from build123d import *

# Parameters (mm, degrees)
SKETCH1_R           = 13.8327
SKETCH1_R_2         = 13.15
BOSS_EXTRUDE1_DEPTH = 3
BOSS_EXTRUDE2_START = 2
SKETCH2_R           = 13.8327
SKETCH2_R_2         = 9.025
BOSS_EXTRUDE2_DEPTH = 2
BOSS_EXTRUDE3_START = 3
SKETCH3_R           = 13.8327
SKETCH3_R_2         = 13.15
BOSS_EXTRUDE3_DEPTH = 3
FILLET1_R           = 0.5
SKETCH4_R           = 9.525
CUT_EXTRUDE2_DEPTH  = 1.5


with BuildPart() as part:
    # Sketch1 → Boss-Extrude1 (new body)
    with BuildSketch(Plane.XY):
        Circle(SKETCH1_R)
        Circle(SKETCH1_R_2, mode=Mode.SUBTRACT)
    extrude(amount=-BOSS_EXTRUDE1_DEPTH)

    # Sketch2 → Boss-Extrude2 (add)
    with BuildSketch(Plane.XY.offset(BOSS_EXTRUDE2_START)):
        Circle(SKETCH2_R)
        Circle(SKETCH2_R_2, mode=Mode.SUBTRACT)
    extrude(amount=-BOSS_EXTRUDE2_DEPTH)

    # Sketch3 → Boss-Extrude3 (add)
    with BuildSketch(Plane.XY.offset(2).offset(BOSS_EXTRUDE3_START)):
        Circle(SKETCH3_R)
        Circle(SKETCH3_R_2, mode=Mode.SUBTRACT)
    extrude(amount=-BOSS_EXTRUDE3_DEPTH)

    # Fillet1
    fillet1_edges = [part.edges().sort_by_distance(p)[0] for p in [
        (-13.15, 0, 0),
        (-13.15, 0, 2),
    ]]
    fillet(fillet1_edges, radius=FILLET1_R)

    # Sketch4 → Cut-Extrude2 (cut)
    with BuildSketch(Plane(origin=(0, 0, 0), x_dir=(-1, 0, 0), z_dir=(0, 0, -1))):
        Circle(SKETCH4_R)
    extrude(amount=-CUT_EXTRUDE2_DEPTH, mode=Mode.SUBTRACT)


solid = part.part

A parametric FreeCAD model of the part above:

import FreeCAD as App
import Part
import Sketcher
from FreeCAD import Vector
Q = App.Units.Quantity


def edges_at(feature, points):
    """Names of the edges that pass closest to the given points."""
    edges = feature.Shape.Edges
    near = lambda p: min(range(len(edges)), key=lambda i: edges[i].distToShape(Part.Vertex(*p))[0])
    return sorted({f"Edge{near(p) + 1}" for p in points})

doc = App.newDocument("Part")
params = doc.addObject("Spreadsheet::Sheet", "Params")
for row, (alias, value) in enumerate([
    ("sketch1_diameter", "26.3 mm"),
    ("pad1_length", "3 mm"),
    ("sketch2_diameter", "18.05 mm"),
    ("pad2_length", "2 mm"),
    ("sketch3_diameter", "26.3 mm"),
    ("pad3_length", "3 mm"),
    ("fillet_radius", "0.5 mm"),
    ("sketch4_diameter", "19.05 mm"),
    ("pocket1_length", "1.5 mm"),
], start=1):
    params.set(f"A{row}", alias)
    params.set(f"B{row}", "=" + value)
    params.setAlias(f"B{row}", alias)

body = doc.addObject("PartDesign::Body", "Body")

# Sketch on XY plane
sketch1 = body.newObject("Sketcher::SketchObject", "Sketch")
sketch1.AttachmentSupport = (doc.getObject("XY_Plane"), [""])
sketch1.MapMode = "FlatFace"
sketch1.addGeometry(Part.Circle(Vector(0, 0, 0), Vector(0, 0, 1), 14), False)
sketch1.addGeometry(Part.Circle(Vector(0, 0, 0), Vector(0, 0, 1), 13), False)
sketch1.addConstraint(Sketcher.Constraint("Coincident", 0, 3, -1, 1))
sketch1.addConstraint(Sketcher.Constraint("Coincident", 1, 3, -1, 1))
sketch1.addConstraint(Sketcher.Constraint("Diameter", 1, Q("26.3 mm")))
sketch1.addConstraint(Sketcher.Constraint("Diameter", 0, Q("27.6654 mm")))
sketch1.setExpression("Constraints[2]", "Params.sketch1_diameter")
pad1 = body.newObject("PartDesign::Pad", "Pad")
pad1.Profile = sketch1
pad1.setExpression("Length", "Params.pad1_length")
pad1.Reversed = True

# Sketch on XY plane
sketch2 = body.newObject("Sketcher::SketchObject", "Sketch001")
sketch2.AttachmentSupport = (doc.getObject("XY_Plane"), [""])
sketch2.MapMode = "FlatFace"
sketch2.AttachmentOffset = App.Placement(Vector(0, 0, 2), App.Rotation())
sketch2.addGeometry(Part.Circle(Vector(0, 0, 0), Vector(0, 0, 1), 14), False)
sketch2.addGeometry(Part.Circle(Vector(0, 0, 0), Vector(0, 0, 1), 9), False)
sketch2.addConstraint(Sketcher.Constraint("Coincident", 0, 3, -1, 1))
sketch2.addConstraint(Sketcher.Constraint("Coincident", 1, 3, -1, 1))
sketch2.addConstraint(Sketcher.Constraint("Diameter", 1, Q("18.05 mm")))
sketch2.addConstraint(Sketcher.Constraint("Diameter", 0, Q("27.6654 mm")))
sketch2.setExpression("Constraints[2]", "Params.sketch2_diameter")
pad2 = body.newObject("PartDesign::Pad", "Pad001")
pad2.Profile = sketch2
pad2.setExpression("Length", "Params.pad2_length")
pad2.Reversed = True

# Sketch on XY plane
sketch3 = body.newObject("Sketcher::SketchObject", "Sketch002")
sketch3.AttachmentSupport = (doc.getObject("XY_Plane"), [""])
sketch3.MapMode = "FlatFace"
sketch3.AttachmentOffset = App.Placement(Vector(0, 0, 5), App.Rotation())
sketch3.addGeometry(Part.Circle(Vector(0, 0, 0), Vector(0, 0, 1), 14), False)
sketch3.addGeometry(Part.Circle(Vector(0, 0, 0), Vector(0, 0, 1), 13), False)
sketch3.addConstraint(Sketcher.Constraint("Coincident", 0, 3, -1, 1))
sketch3.addConstraint(Sketcher.Constraint("Coincident", 1, 3, -1, 1))
sketch3.addConstraint(Sketcher.Constraint("Diameter", 1, Q("26.3 mm")))
sketch3.addConstraint(Sketcher.Constraint("Diameter", 0, Q("27.6654 mm")))
sketch3.setExpression("Constraints[2]", "Params.sketch3_diameter")
pad3 = body.newObject("PartDesign::Pad", "Pad002")
pad3.Profile = sketch3
pad3.setExpression("Length", "Params.pad3_length")
pad3.Reversed = True
doc.recompute()

fillet = body.newObject("PartDesign::Fillet", "Fillet")
fillet.Base = (pad3, edges_at(pad3, [(-13.15, 0, 0), (-13.15, 0, 2)]))
fillet.setExpression("Radius", "Params.fillet_radius")

# Sketch on XY plane
sketch4 = body.newObject("Sketcher::SketchObject", "Sketch003")
sketch4.AttachmentSupport = (doc.getObject("XY_Plane"), [""])
sketch4.MapMode = "FlatFace"
sketch4.addGeometry(Part.Circle(Vector(0, 0, 0), Vector(0, 0, 1), 10), False)
sketch4.addConstraint(Sketcher.Constraint("Coincident", 0, 3, -1, 1))
sketch4.addConstraint(Sketcher.Constraint("Diameter", 0, Q("19.05 mm")))
sketch4.setExpression("Constraints[1]", "Params.sketch4_diameter")
pocket1 = body.newObject("PartDesign::Pocket", "Pocket")
pocket1.Profile = sketch4
pocket1.setExpression("Length", "Params.pocket1_length")
pocket1.Reversed = True

doc.recompute()
